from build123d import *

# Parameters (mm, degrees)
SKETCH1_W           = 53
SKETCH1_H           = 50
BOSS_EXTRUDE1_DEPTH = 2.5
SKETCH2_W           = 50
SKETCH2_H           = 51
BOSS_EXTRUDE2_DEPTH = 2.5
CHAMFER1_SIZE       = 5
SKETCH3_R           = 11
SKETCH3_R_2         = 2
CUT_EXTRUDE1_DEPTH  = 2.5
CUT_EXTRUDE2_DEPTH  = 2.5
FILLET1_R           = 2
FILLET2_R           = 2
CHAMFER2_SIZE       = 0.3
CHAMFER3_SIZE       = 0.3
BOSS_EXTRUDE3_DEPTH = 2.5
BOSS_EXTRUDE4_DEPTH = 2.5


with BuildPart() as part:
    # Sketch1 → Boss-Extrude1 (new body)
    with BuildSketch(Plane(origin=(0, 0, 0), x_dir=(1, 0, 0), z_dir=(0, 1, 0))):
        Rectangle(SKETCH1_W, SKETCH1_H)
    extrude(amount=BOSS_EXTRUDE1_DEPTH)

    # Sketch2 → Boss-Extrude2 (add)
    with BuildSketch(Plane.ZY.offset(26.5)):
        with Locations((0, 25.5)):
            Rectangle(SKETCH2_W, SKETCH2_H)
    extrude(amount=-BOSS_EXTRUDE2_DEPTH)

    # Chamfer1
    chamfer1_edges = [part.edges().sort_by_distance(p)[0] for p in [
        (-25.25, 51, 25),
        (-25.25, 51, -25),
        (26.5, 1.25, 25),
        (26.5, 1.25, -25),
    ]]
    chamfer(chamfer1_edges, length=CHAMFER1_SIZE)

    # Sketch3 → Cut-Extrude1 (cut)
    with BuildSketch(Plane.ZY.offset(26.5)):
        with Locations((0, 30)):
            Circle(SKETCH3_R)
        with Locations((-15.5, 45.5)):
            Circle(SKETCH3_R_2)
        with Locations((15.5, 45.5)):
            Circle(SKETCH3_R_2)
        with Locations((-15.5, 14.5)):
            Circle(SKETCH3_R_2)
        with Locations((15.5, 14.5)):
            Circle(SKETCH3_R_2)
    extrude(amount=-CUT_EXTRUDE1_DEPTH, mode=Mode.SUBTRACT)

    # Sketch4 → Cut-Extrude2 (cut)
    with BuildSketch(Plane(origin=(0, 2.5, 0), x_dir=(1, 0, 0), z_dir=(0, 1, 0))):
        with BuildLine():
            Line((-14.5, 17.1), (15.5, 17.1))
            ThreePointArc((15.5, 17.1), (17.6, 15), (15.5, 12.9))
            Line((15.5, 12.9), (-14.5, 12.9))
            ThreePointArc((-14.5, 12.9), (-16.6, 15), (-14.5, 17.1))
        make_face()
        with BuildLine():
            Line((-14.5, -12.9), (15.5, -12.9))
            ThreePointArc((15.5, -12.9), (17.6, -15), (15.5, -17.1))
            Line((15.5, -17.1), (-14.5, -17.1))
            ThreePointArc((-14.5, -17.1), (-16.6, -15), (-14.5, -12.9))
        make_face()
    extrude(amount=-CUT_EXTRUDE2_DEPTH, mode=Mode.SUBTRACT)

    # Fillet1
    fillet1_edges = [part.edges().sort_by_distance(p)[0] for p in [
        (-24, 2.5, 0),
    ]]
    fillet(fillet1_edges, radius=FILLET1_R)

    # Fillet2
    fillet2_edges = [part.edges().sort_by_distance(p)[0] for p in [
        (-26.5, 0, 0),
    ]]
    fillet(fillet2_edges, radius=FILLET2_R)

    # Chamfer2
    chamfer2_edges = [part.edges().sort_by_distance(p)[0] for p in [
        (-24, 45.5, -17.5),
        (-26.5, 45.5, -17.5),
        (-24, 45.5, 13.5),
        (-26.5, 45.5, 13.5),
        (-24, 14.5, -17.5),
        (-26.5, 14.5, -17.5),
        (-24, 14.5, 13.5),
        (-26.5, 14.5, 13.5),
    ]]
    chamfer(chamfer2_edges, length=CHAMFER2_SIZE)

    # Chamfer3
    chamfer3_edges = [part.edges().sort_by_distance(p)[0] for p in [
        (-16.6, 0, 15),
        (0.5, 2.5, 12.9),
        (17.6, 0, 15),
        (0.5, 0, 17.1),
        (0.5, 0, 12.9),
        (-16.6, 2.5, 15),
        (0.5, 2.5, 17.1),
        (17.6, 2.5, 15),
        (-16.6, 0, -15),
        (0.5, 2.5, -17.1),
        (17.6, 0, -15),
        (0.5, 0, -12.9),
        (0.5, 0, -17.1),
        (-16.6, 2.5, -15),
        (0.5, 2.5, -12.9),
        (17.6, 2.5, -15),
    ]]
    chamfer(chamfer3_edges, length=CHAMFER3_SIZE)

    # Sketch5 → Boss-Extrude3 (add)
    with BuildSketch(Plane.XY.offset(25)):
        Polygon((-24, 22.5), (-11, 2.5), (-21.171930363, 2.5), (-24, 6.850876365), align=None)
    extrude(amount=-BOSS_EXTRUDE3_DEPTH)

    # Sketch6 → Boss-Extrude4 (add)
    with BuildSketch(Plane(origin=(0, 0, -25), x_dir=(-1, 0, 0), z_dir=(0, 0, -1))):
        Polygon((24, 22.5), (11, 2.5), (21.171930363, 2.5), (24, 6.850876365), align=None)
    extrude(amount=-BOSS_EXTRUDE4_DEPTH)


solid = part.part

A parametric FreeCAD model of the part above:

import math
import FreeCAD as App
import Part
import Sketcher


def edges_at(feature, points):
    """Names of the edges that pass closest to the given points."""
    edges = feature.Shape.Edges
    near = lambda p: min(range(len(edges)), key=lambda i: edges[i].distToShape(Part.Vertex(*p))[0])
    return sorted({f"Edge{near(p) + 1}" for p in points})

doc = App.newDocument("Part")
body = doc.addObject("PartDesign::Body", "Body")

# Sketch on XZ plane
sketch1 = body.newObject("Sketcher::SketchObject", "Sketch")
sketch1.AttachmentSupport = (doc.getObject("XZ_Plane"), [""])
sketch1.MapMode = "FlatFace"
sketch1.addGeometry([
    Part.LineSegment(App.Vector(-26, -25, 0), App.Vector(-26, 25, 0)),
    Part.LineSegment(App.Vector(-26, 25, 0), App.Vector(26, 25, 0)),
    Part.LineSegment(App.Vector(26, 25, 0), App.Vector(26, -25, 0)),
    Part.LineSegment(App.Vector(26, -25, 0), App.Vector(-26, -25, 0)),
], False)
sketch1.addConstraint([
    Sketcher.Constraint("Coincident", 0, 2, 1, 1),
    Sketcher.Constraint("Coincident", 1, 2, 2, 1),
    Sketcher.Constraint("Coincident", 2, 2, 3, 1),
    Sketcher.Constraint("Coincident", 3, 2, 0, 1),
    Sketcher.Constraint("Vertical", 0),
    Sketcher.Constraint("Horizontal", 1),
    Sketcher.Constraint("Vertical", 2),
    Sketcher.Constraint("Horizontal", 3),
    Sketcher.Constraint("Symmetric", 0, 2, 2, 2, -1, 1),
    Sketcher.Constraint("DistanceX", 1, 1, 1, 2, 53.0),
    Sketcher.Constraint("DistanceY", 0, 1, 0, 2, 50.0),
])
pad1 = body.newObject("PartDesign::Pad", "Pad")
pad1.Profile = sketch1
pad1.Length = 2.5
pad1.Reversed = True

# Sketch on YZ plane
sketch2 = body.newObject("Sketcher::SketchObject", "Sketch001")
sketch2.AttachmentSupport = (doc.getObject("YZ_Plane"), [""])
sketch2.MapMode = "FlatFace"
sketch2.AttachmentOffset = App.Placement(App.Vector(0, 0, -26.5), App.Rotation())
sketch2.addGeometry([
    Part.LineSegment(App.Vector(51, -25, 0), App.Vector(0, -25, 0)),
    Part.LineSegment(App.Vector(0, -25, 0), App.Vector(0, 25, 0)),
    Part.LineSegment(App.Vector(0, 25, 0), App.Vector(51, 25, 0)),
    Part.LineSegment(App.Vector(51, 25, 0), App.Vector(51, -25, 0)),
], False)
sketch2.addConstraint([
    Sketcher.Constraint("Coincident", 0, 2, 1, 1),
    Sketcher.Constraint("Coincident", 1, 2, 2, 1),
    Sketcher.Constraint("Coincident", 2, 2, 3, 1),
    Sketcher.Constraint("Coincident", 3, 2, 0, 1),
    Sketcher.Constraint("Horizontal", 0),
    Sketcher.Constraint("Vertical", 1),
    Sketcher.Constraint("Horizontal", 2),
    Sketcher.Constraint("Vertical", 3),
    Sketcher.Constraint("Symmetric", 0, 2, 1, 2, -1, 1),
    Sketcher.Constraint("DistanceX", 0, 2, 0, 1, 51.0),
    Sketcher.Constraint("DistanceY", 1, 1, 1, 2, 50.0),
])
pad2 = body.newObject("PartDesign::Pad", "Pad001")
pad2.Profile = sketch2
pad2.Length = 2.5
doc.recompute()

chamfer = body.newObject("PartDesign::Chamfer", "Chamfer")
chamfer.Base = (pad2, edges_at(pad2, [
    (-25.25, 51, 25),
    (-25.25, 51, -25),
    (26.5, 1.25, 25),
    (26.5, 1.25, -25),
]))
chamfer.Size = 5

# Sketch on YZ plane
sketch3 = body.newObject("Sketcher::SketchObject", "Sketch002")
sketch3.AttachmentSupport = (doc.getObject("YZ_Plane"), [""])
sketch3.MapMode = "FlatFace"
sketch3.AttachmentOffset = App.Placement(App.Vector(0, 0, -26.5), App.Rotation())
sketch3.addGeometry([
    Part.Circle(App.Vector(30, 0, 0), App.Vector(0, 0, 1), 11),  # 0
    Part.Circle(App.Vector(45.5, -15.5, 0), App.Vector(0, 0, 1), 2),  # 1
    Part.Circle(App.Vector(45.5, 15.5, 0), App.Vector(0, 0, 1), 2),  # 2
    Part.Circle(App.Vector(14.5, -15.5, 0), App.Vector(0, 0, 1), 2),  # 3
    Part.Circle(App.Vector(14.5, 15.5, 0), App.Vector(0, 0, 1), 2),  # 4
], False)
sketch3.addConstraint([
    Sketcher.Constraint("Equal", 1, 2),
    Sketcher.Constraint("Equal", 2, 3),
    Sketcher.Constraint("Equal", 3, 4),
    Sketcher.Constraint("Symmetric", 1, 3, 2, 3, -1),
    Sketcher.Constraint("Symmetric", 3, 3, 4, 3, -1),
    Sketcher.Constraint("PointOnObject", 0, 3, -1),
    Sketcher.Constraint("Horizontal", 1, 3, 3, 3),
    Sketcher.Constraint("Diameter", 0, 22.0),
    Sketcher.Constraint("Diameter", 1, 4.0),
    Sketcher.Constraint("DistanceX", -1, 1, 0, 3, 30.0),
    Sketcher.Constraint("DistanceY", 1, 3, 2, 3, 31.0),
    Sketcher.Constraint("DistanceX", 3, 3, 1, 3, 31.0),
    Sketcher.Constraint("DistanceX", -1, 1, 1, 3, 45.5),
])
pocket1 = body.newObject("PartDesign::Pocket", "Pocket")
pocket1.Profile = sketch3
pocket1.Length = 2.5
pocket1.Reversed = True

# Sketch on XZ plane
sketch4 = body.newObject("Sketcher::SketchObject", "Sketch003")
sketch4.AttachmentSupport = (doc.getObject("XZ_Plane"), [""])
sketch4.MapMode = "FlatFace"
sketch4.AttachmentOffset = App.Placement(App.Vector(0, 0, -2.5), App.Rotation())
sketch4.addGeometry([
    Part.LineSegment(App.Vector(15.5, -17.1, 0), App.Vector(-14.5, -17.1, 0)),  # 0
    Part.ArcOfCircle(Part.Circle(App.Vector(-14.5, -15, 0), App.Vector(0, 0, 1), 2.1), math.radians(90), math.radians(270)),  # 1
    Part.LineSegment(App.Vector(-14.5, -12.9, 0), App.Vector(15.5, -12.9, 0)),  # 2
    Part.ArcOfCircle(Part.Circle(App.Vector(15.5, -15, 0), App.Vector(0, 0, 1), 2.1), math.radians(-90), math.radians(90)),  # 3
    Part.LineSegment(App.Vector(15.5, 12.9, 0), App.Vector(-14.5, 12.9, 0)),  # 4
    Part.ArcOfCircle(Part.Circle(App.Vector(-14.5, 15, 0), App.Vector(0, 0, 1), 2.1), math.radians(90), math.radians(270)),  # 5
    Part.LineSegment(App.Vector(-14.5, 17.1, 0), App.Vector(15.5, 17.1, 0)),  # 6
    Part.ArcOfCircle(Part.Circle(App.Vector(15.5, 15, 0), App.Vector(0, 0, 1), 2.1), math.radians(-90), math.radians(90)),  # 7
], False)
sketch4.addConstraint([
    Sketcher.Constraint("Tangent", 0, 2, 1, 2),
    Sketcher.Constraint("Tangent", 1, 1, 2, 1),
    Sketcher.Constraint("Tangent", 2, 2, 3, 2),
    Sketcher.Constraint("Tangent", 3, 1, 0, 1),
    Sketcher.Constraint("Tangent", 4, 2, 5, 2),
    Sketcher.Constraint("Tangent", 5, 1, 6, 1),
    Sketcher.Constraint("Tangent", 6, 2, 7, 2),
    Sketcher.Constraint("Tangent", 7, 1, 4, 1),
    Sketcher.Constraint("Horizontal", 0),
    Sketcher.Constraint("Horizontal", 2),
    Sketcher.Constraint("Horizontal", 4),
    Sketcher.Constraint("Horizontal", 6),
    Sketcher.Constraint("Equal", 3, 5),
    Sketcher.Constraint("Symmetric", 1, 3, 5, 3, -1),
    Sketcher.Constraint("Vertical", 3, 3, 7, 3),
    Sketcher.Constraint("Radius", 1, 2.1),
    Sketcher.Constraint("DistanceX", 0, 2, 0, 1, 30.0),
    Sketcher.Constraint("DistanceY", 1, 3, -1, 1, 15.0),
    Sketcher.Constraint("DistanceX", 1, 3, -1, 1, 14.5),
])
pocket2 = body.newObject("PartDesign::Pocket", "Pocket001")
pocket2.Profile = sketch4
pocket2.Length = 2.5
pocket2.Reversed = True
doc.recompute()

fillet = body.newObject("PartDesign::Fillet", "Fillet")
fillet.Base = (pocket2, edges_at(pocket2, [(-24, 2.5, 0)]))
fillet.Radius = 2
doc.recompute()

fillet2 = body.newObject("PartDesign::Fillet", "Fillet001")
fillet2.Base = (fillet, edges_at(fillet, [(-26.5, 0, 0)]))
fillet2.Radius = 2
doc.recompute()

chamfer2 = body.newObject("PartDesign::Chamfer", "Chamfer001")
chamfer2.Base = (fillet2, edges_at(fillet2, [
    (-24, 45.5, -17.5),
    (-26.5, 45.5, -17.5),
    (-24, 45.5, 13.5),
    (-26.5, 45.5, 13.5),
    (-24, 14.5, -17.5),
    (-26.5, 14.5, -17.5),
    (-24, 14.5, 13.5),
    (-26.5, 14.5, 13.5),
]))
chamfer2.Size = 0.3
doc.recompute()

chamfer3 = body.newObject("PartDesign::Chamfer", "Chamfer002")
chamfer3.Base = (chamfer2, edges_at(chamfer2, [
    (-16.6, 0, 15),
    (0.5, 2.5, 12.9),
    (17.6, 0, 15),
    (0.5, 0, 17.1),
    (0.5, 0, 12.9),
    (-16.6, 2.5, 15),
    (0.5, 2.5, 17.1),
    (17.6, 2.5, 15),
    (-16.6, 0, -15),
    (0.5, 2.5, -17.1),
    (17.6, 0, -15),
    (0.5, 0, -12.9),
    (0.5, 0, -17.1),
    (-16.6, 2.5, -15),
    (0.5, 2.5, -12.9),
    (17.6, 2.5, -15),
]))
chamfer3.Size = 0.3

# Sketch on XY plane
sketch5 = body.newObject("Sketcher::SketchObject", "Sketch004")
sketch5.AttachmentSupport = (doc.getObject("XY_Plane"), [""])
sketch5.MapMode = "FlatFace"
sketch5.AttachmentOffset = App.Placement(App.Vector(0, 0, 25), App.Rotation())
sketch5.addGeometry([
    Part.LineSegment(App.Vector(-11, 2, 0), App.Vector(-24, 22, 0)),
    Part.LineSegment(App.Vector(-24, 22, 0), App.Vector(-24, 7, 0)),
    Part.LineSegment(App.Vector(-24, 7, 0), App.Vector(-21, 2, 0)),
    Part.LineSegment(App.Vector(-21, 2, 0), App.Vector(-11, 2, 0)),
], False)
sketch5.addConstraint([
    Sketcher.Constraint("Coincident", 0, 2, 1, 1),
    Sketcher.Constraint("Coincident", 1, 2, 2, 1),
    Sketcher.Constraint("Coincident", 2, 2, 3, 1),
    Sketcher.Constraint("Coincident", 3, 2, 0, 1),
    Sketcher.Constraint("Vertical", 1),
    Sketcher.Constraint("Horizontal", 3),
    Sketcher.Constraint("Parallel", 0, 2),
    Sketcher.Constraint("DistanceX", 0, 2, -1, 1, 24.0),
    Sketcher.Constraint("DistanceX", 3, 2, -1, 1, 11.0),
    Sketcher.Constraint("DistanceY", 2, 2, 0, 2, 20.0),
    Sketcher.Constraint("DistanceY", -1, 1, 0, 2, 22.5),
    Sketcher.Constraint("DistanceX", 3, 1, 3, 2, 10.17193),
])
pad3 = body.newObject("PartDesign::Pad", "Pad002")
pad3.Profile = sketch5
pad3.Length = 2.5
pad3.Reversed = True

# Sketch on XY plane
sketch6 = body.newObject("Sketcher::SketchObject", "Sketch005")
sketch6.AttachmentSupport = (doc.getObject("XY_Plane"), [""])
sketch6.MapMode = "FlatFace"
sketch6.AttachmentOffset = App.Placement(App.Vector(0, 0, -25), App.Rotation())
sketch6.addGeometry([
    Part.LineSegment(App.Vector(-24, 22, 0), App.Vector(-11, 2, 0)),
    Part.LineSegment(App.Vector(-11, 2, 0), App.Vector(-21, 2, 0)),
    Part.LineSegment(App.Vector(-21, 2, 0), App.Vector(-24, 7, 0)),
    Part.LineSegment(App.Vector(-24, 7, 0), App.Vector(-24, 22, 0)),
], False)
sketch6.addConstraint([
    Sketcher.Constraint("Coincident", 0, 2, 1, 1),
    Sketcher.Constraint("Coincident", 1, 2, 2, 1),
    Sketcher.Constraint("Coincident", 2, 2, 3, 1),
    Sketcher.Constraint("Coincident", 3, 2, 0, 1),
    Sketcher.Constraint("Horizontal", 1),
    Sketcher.Constraint("Vertical", 3),
    Sketcher.Constraint("Parallel", 0, 2),
    Sketcher.Constraint("DistanceX", 0, 2, -1, 1, 11.0),
    Sketcher.Constraint("DistanceX", 2, 2, -1, 1, 24.0),
    Sketcher.Constraint("DistanceY", 1, 2, 3, 2, 20.0),
    Sketcher.Constraint("DistanceY", -1, 1, 0, 2, 2.5),
    Sketcher.Constraint("DistanceX", 1, 2, 1, 1, 10.17193),
])
pad4 = body.newObject("PartDesign::Pad", "Pad003")
pad4.Profile = sketch6
pad4.Length = 2.5

doc.recompute()
